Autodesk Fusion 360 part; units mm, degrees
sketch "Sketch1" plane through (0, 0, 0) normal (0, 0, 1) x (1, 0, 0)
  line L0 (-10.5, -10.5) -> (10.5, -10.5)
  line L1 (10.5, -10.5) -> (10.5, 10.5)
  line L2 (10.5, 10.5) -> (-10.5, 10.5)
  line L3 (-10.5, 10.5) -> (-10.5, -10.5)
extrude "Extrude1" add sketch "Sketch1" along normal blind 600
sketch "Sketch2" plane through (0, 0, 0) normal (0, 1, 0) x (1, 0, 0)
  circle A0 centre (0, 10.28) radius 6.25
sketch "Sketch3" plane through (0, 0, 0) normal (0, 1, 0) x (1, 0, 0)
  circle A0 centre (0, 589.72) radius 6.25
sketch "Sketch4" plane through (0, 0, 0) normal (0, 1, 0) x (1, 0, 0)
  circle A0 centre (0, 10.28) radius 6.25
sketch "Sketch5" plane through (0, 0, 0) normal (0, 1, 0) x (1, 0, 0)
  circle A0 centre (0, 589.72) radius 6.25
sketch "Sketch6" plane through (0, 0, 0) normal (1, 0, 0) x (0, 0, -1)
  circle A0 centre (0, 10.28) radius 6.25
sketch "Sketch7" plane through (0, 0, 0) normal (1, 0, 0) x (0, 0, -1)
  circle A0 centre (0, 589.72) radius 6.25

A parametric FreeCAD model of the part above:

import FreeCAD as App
import Part
import Sketcher

V = App.Vector


def add_polygon(sketch, points):
    """Adds a closed chain of lines whose ends are joined by coincident constraints."""
    first, n = sketch.GeometryCount, len(points)
    for a, b in zip(points, points[1:] + points[:1]):
        sketch.addGeometry(Part.LineSegment(App.Vector(*a, 0), App.Vector(*b, 0)), False)
    for i in range(n):
        sketch.addConstraint(Sketcher.Constraint("Coincident", first + i, 2, first + (i + 1) % n, 1))

doc = App.newDocument("Part")
body = doc.addObject("PartDesign::Body", "Body")

sketch1 = body.newObject("Sketcher::SketchObject", "Sketch")
sketch1.AttachmentSupport = (doc.getObject("XY_Plane"), [""])
sketch1.MapMode = "FlatFace"
add_polygon(sketch1, [(-10, 10), (-10, -10), (10, -10), (10, 10)])
sketch1.addConstraint(Sketcher.Constraint("Vertical", 0))
sketch1.addConstraint(Sketcher.Constraint("Horizontal", 1))
sketch1.addConstraint(Sketcher.Constraint("Vertical", 2))
sketch1.addConstraint(Sketcher.Constraint("Horizontal", 3))
sketch1.addConstraint(Sketcher.Constraint("Symmetric", 0, 2, 2, 2, -1, 1))
sketch1.addConstraint(Sketcher.Constraint("Equal", 3, 0))
sketch1.addConstraint(Sketcher.Constraint("DistanceX", 1, 1, 1, 2, 21.0))
pad1 = body.newObject("PartDesign::Pad", "Pad")
pad1.Profile = sketch1
pad1.Length = 600

doc.recompute()
